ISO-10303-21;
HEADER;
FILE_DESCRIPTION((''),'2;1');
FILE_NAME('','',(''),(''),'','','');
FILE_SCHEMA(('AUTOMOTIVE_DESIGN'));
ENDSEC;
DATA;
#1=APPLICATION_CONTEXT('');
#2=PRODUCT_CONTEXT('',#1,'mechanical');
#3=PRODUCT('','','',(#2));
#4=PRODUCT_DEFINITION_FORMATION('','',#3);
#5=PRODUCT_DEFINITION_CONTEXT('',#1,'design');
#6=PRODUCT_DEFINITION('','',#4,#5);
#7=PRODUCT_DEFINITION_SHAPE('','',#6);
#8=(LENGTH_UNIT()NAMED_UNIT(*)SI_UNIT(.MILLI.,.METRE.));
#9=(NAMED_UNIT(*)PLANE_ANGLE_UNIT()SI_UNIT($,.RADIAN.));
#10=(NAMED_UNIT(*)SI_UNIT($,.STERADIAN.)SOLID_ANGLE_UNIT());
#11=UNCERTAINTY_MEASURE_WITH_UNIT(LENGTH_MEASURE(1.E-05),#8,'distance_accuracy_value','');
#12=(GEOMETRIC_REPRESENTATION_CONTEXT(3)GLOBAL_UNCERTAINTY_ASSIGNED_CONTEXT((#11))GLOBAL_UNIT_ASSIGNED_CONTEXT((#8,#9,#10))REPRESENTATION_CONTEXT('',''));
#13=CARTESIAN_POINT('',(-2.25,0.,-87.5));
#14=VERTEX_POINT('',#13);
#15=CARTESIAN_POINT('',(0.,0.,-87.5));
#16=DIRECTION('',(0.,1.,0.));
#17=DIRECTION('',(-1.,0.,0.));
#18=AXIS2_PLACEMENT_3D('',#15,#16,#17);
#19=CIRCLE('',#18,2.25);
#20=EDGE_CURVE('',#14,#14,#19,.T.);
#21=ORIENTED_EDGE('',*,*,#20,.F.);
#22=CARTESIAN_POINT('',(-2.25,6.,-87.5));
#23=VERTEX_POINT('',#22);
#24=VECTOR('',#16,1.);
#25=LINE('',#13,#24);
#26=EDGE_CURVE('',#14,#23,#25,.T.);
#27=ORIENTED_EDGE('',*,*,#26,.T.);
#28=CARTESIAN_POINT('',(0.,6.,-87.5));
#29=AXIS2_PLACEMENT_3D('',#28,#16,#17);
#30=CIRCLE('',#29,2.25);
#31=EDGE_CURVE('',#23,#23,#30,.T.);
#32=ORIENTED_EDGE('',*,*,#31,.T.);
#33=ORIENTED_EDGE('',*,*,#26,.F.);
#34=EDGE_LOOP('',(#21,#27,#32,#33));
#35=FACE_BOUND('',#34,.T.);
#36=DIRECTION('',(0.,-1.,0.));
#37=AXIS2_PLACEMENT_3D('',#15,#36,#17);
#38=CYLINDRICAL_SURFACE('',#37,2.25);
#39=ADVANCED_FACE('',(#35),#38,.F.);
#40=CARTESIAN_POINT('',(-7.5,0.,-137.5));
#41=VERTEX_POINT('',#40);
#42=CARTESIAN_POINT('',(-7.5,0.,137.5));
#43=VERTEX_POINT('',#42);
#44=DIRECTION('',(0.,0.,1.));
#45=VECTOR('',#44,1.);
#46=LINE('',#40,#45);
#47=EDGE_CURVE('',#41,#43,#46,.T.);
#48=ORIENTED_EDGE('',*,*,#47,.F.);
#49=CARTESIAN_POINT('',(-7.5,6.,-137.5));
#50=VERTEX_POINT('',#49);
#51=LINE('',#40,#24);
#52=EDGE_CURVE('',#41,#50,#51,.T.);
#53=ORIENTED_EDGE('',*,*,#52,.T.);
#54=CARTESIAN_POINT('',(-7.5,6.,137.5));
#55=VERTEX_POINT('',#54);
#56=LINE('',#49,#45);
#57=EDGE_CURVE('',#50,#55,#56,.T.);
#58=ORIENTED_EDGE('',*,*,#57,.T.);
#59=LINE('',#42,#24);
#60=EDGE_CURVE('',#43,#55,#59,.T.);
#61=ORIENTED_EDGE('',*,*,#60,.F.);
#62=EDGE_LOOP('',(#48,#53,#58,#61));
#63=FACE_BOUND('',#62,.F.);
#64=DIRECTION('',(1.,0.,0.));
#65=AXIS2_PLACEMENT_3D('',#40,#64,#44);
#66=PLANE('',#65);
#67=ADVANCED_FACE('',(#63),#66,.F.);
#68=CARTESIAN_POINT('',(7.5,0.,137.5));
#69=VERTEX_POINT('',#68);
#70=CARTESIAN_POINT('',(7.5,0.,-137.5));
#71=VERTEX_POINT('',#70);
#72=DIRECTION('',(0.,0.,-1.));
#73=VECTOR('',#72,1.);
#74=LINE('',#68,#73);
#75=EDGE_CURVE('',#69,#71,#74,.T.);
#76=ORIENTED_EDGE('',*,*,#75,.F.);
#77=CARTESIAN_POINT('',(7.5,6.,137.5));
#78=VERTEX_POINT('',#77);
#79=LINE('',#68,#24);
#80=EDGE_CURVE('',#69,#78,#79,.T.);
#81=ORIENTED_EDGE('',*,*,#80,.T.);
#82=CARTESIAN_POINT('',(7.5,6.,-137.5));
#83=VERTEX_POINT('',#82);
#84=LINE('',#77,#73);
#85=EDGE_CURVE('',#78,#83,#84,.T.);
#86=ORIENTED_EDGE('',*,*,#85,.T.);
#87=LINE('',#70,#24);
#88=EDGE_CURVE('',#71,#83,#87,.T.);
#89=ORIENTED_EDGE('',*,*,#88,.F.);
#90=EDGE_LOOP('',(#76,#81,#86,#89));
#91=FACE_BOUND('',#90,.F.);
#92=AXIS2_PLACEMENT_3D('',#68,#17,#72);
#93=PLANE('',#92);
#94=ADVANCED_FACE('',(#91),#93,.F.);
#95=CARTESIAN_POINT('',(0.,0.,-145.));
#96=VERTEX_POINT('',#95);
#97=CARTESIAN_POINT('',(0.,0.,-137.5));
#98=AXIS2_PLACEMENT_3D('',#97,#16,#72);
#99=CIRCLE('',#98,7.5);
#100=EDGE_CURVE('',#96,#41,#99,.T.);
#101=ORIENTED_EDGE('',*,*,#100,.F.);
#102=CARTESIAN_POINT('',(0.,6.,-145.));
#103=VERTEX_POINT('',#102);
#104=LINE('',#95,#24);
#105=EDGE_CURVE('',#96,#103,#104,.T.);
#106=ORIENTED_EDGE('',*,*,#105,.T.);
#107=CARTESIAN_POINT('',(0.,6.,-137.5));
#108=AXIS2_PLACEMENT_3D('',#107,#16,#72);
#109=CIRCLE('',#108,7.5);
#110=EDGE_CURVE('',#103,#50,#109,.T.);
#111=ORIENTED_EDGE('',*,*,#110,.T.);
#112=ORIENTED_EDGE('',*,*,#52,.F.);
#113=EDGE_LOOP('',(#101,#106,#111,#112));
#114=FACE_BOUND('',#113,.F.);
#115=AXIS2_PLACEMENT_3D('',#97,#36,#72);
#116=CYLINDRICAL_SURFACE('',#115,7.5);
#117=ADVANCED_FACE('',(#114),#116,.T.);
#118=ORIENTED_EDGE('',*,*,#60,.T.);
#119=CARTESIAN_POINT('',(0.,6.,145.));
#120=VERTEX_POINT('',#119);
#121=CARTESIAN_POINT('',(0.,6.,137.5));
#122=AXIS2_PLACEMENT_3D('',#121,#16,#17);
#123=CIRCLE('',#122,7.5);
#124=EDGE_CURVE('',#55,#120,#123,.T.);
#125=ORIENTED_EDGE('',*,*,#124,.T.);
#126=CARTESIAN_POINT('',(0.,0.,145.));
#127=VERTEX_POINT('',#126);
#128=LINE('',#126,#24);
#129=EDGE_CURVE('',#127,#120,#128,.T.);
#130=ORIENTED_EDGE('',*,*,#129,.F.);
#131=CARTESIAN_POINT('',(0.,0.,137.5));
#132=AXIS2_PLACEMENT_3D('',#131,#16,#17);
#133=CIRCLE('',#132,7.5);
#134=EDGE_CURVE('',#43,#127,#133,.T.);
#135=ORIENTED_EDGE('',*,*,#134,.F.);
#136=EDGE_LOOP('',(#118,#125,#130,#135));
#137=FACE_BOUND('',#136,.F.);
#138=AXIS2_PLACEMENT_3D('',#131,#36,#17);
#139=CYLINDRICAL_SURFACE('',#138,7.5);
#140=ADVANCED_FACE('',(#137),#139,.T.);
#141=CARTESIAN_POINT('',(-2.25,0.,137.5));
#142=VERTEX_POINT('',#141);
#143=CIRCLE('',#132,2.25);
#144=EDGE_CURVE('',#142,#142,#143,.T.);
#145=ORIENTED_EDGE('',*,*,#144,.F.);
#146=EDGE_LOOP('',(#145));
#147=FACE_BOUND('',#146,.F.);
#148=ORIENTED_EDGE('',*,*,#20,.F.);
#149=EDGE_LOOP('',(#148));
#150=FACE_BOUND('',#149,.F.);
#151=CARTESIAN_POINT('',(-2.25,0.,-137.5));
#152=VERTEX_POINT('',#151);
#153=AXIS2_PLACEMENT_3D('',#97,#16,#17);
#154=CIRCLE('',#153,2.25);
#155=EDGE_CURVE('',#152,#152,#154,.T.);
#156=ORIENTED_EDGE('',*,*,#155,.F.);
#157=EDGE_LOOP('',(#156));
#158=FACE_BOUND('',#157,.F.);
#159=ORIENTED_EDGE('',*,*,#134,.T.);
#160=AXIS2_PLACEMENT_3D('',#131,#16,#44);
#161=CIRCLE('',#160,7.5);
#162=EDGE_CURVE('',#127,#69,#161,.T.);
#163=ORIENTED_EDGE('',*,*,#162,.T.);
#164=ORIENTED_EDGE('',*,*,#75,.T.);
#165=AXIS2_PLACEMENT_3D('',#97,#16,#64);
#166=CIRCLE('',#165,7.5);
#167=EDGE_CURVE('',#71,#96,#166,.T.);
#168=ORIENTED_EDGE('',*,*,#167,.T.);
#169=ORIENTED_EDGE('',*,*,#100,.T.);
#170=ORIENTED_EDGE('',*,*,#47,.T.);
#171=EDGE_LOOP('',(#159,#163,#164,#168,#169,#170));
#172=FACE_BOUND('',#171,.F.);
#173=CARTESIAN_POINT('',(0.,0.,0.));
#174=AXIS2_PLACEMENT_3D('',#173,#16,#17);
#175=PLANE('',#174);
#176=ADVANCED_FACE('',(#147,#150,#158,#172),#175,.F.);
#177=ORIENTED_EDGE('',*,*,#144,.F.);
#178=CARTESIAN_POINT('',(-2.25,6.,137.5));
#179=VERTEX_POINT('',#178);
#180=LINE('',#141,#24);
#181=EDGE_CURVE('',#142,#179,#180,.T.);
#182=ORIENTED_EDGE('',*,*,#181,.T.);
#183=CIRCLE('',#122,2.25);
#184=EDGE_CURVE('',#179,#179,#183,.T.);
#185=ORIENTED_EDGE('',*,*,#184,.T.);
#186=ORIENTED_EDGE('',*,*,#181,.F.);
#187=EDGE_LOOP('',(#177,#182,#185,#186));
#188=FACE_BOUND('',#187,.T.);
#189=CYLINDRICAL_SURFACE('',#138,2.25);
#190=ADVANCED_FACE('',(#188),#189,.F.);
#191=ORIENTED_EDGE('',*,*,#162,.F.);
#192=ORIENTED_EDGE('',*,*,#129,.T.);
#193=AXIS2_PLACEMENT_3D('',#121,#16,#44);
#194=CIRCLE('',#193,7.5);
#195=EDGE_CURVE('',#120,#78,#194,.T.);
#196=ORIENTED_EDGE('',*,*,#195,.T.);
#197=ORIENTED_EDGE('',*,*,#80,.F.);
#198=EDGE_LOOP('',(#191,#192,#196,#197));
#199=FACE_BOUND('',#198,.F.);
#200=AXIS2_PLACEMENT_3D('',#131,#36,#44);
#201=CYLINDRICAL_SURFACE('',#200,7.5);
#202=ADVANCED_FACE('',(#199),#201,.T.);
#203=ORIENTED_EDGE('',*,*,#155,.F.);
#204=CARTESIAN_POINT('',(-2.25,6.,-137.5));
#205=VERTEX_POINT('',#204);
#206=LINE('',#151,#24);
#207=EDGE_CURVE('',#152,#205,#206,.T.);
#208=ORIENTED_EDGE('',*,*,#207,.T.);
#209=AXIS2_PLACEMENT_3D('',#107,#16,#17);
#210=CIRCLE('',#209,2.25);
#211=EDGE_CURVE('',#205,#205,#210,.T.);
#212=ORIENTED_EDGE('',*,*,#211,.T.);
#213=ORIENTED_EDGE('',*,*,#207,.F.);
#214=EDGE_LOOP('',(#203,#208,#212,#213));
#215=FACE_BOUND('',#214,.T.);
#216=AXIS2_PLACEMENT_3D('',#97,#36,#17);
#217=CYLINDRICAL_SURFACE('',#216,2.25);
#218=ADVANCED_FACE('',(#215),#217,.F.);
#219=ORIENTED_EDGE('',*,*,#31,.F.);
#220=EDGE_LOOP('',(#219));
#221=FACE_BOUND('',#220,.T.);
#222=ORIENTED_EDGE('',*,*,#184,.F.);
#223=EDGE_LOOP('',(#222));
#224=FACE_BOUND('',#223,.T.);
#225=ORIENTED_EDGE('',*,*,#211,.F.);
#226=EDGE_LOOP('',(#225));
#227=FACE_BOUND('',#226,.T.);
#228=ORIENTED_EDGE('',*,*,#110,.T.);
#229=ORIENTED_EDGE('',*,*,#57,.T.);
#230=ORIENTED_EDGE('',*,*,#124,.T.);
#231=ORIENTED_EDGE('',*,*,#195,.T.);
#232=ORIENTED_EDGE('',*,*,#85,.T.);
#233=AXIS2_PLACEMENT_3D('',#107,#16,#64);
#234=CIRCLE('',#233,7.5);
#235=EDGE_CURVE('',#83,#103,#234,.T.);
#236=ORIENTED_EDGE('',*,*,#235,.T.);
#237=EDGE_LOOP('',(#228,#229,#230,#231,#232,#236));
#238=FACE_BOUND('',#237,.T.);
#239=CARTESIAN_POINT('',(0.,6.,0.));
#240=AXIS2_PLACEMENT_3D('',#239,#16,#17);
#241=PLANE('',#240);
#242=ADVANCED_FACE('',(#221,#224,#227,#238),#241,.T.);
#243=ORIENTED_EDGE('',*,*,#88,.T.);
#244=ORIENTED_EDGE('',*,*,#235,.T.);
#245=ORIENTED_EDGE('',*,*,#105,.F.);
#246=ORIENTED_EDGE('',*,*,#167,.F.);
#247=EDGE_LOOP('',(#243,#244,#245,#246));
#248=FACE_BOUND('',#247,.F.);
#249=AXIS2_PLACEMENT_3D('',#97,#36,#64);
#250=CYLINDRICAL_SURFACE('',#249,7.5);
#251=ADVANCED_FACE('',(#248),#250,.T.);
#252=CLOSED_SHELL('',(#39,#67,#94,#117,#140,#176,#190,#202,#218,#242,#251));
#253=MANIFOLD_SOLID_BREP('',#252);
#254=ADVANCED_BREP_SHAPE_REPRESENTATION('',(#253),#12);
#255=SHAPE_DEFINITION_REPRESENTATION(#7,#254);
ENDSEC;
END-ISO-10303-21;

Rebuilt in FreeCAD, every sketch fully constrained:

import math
import FreeCAD as App
import Part
import Sketcher

V = App.Vector
Q = App.Units.Quantity

doc = App.newDocument("Part")
body = doc.addObject("PartDesign::Body", "Body")

# Sketch on XZ plane
sketch1 = body.newObject("Sketcher::SketchObject", "Sketch")
sketch1.AttachmentSupport = (doc.getObject("XZ_Plane"), [""])
sketch1.MapMode = "FlatFace"
sketch1.addGeometry([
    Part.ArcOfCircle(Part.Circle(V(0, -137.5, 0), V(0, 0, 1), 7.5), math.radians(180), math.radians(360)),  # 0
    Part.LineSegment(V(-7.5, -137.5, 0), V(-7.5, 137.5, 0)),  # 1
    Part.ArcOfCircle(Part.Circle(V(0, 137.5, 0), V(0, 0, 1), 7.5), math.radians(0), math.radians(180)),  # 2
    Part.LineSegment(V(7.5, 137.5, 0), V(7.5, -137.5, 0)),  # 3
    Part.Circle(V(0, -137.5, 0), V(0, 0, 1), 2.25),  # 4
    Part.Circle(V(0, -87.5, 0), V(0, 0, 1), 2.25),  # 5
    Part.Circle(V(0, 137.5, 0), V(0, 0, 1), 2.25),  # 6
], False)
sketch1.addConstraint([
    Sketcher.Constraint("Tangent", 0, 1, 1, 1),
    Sketcher.Constraint("Tangent", 1, 2, 2, 2),
    Sketcher.Constraint("Tangent", 2, 1, 3, 1),
    Sketcher.Constraint("Tangent", 3, 2, 0, 2),
    Sketcher.Constraint("Vertical", 1),
    Sketcher.Constraint("Vertical", 3),
    Sketcher.Constraint("Coincident", 4, 3, 0, 3),
    Sketcher.Constraint("Coincident", 6, 3, 2, 3),
    Sketcher.Constraint("Equal", 4, 5),
    Sketcher.Constraint("Equal", 5, 6),
    Sketcher.Constraint("Symmetric", 0, 3, 2, 3, -1, 1),
    Sketcher.Constraint("PointOnObject", 5, 3, -2),
    Sketcher.Constraint("Diameter", 4, Q("4.5 mm")),
    Sketcher.Constraint("Radius", 0, Q("7.5 mm")),
    Sketcher.Constraint("DistanceY", 1, 1, 1, 2, Q("275 mm")),
    Sketcher.Constraint("DistanceY", 0, 3, 5, 3, Q("50 mm")),
])
pad1 = body.newObject("PartDesign::Pad", "Pad")
pad1.Profile = sketch1
pad1.Length = 6
pad1.Reversed = True

doc.recompute()
